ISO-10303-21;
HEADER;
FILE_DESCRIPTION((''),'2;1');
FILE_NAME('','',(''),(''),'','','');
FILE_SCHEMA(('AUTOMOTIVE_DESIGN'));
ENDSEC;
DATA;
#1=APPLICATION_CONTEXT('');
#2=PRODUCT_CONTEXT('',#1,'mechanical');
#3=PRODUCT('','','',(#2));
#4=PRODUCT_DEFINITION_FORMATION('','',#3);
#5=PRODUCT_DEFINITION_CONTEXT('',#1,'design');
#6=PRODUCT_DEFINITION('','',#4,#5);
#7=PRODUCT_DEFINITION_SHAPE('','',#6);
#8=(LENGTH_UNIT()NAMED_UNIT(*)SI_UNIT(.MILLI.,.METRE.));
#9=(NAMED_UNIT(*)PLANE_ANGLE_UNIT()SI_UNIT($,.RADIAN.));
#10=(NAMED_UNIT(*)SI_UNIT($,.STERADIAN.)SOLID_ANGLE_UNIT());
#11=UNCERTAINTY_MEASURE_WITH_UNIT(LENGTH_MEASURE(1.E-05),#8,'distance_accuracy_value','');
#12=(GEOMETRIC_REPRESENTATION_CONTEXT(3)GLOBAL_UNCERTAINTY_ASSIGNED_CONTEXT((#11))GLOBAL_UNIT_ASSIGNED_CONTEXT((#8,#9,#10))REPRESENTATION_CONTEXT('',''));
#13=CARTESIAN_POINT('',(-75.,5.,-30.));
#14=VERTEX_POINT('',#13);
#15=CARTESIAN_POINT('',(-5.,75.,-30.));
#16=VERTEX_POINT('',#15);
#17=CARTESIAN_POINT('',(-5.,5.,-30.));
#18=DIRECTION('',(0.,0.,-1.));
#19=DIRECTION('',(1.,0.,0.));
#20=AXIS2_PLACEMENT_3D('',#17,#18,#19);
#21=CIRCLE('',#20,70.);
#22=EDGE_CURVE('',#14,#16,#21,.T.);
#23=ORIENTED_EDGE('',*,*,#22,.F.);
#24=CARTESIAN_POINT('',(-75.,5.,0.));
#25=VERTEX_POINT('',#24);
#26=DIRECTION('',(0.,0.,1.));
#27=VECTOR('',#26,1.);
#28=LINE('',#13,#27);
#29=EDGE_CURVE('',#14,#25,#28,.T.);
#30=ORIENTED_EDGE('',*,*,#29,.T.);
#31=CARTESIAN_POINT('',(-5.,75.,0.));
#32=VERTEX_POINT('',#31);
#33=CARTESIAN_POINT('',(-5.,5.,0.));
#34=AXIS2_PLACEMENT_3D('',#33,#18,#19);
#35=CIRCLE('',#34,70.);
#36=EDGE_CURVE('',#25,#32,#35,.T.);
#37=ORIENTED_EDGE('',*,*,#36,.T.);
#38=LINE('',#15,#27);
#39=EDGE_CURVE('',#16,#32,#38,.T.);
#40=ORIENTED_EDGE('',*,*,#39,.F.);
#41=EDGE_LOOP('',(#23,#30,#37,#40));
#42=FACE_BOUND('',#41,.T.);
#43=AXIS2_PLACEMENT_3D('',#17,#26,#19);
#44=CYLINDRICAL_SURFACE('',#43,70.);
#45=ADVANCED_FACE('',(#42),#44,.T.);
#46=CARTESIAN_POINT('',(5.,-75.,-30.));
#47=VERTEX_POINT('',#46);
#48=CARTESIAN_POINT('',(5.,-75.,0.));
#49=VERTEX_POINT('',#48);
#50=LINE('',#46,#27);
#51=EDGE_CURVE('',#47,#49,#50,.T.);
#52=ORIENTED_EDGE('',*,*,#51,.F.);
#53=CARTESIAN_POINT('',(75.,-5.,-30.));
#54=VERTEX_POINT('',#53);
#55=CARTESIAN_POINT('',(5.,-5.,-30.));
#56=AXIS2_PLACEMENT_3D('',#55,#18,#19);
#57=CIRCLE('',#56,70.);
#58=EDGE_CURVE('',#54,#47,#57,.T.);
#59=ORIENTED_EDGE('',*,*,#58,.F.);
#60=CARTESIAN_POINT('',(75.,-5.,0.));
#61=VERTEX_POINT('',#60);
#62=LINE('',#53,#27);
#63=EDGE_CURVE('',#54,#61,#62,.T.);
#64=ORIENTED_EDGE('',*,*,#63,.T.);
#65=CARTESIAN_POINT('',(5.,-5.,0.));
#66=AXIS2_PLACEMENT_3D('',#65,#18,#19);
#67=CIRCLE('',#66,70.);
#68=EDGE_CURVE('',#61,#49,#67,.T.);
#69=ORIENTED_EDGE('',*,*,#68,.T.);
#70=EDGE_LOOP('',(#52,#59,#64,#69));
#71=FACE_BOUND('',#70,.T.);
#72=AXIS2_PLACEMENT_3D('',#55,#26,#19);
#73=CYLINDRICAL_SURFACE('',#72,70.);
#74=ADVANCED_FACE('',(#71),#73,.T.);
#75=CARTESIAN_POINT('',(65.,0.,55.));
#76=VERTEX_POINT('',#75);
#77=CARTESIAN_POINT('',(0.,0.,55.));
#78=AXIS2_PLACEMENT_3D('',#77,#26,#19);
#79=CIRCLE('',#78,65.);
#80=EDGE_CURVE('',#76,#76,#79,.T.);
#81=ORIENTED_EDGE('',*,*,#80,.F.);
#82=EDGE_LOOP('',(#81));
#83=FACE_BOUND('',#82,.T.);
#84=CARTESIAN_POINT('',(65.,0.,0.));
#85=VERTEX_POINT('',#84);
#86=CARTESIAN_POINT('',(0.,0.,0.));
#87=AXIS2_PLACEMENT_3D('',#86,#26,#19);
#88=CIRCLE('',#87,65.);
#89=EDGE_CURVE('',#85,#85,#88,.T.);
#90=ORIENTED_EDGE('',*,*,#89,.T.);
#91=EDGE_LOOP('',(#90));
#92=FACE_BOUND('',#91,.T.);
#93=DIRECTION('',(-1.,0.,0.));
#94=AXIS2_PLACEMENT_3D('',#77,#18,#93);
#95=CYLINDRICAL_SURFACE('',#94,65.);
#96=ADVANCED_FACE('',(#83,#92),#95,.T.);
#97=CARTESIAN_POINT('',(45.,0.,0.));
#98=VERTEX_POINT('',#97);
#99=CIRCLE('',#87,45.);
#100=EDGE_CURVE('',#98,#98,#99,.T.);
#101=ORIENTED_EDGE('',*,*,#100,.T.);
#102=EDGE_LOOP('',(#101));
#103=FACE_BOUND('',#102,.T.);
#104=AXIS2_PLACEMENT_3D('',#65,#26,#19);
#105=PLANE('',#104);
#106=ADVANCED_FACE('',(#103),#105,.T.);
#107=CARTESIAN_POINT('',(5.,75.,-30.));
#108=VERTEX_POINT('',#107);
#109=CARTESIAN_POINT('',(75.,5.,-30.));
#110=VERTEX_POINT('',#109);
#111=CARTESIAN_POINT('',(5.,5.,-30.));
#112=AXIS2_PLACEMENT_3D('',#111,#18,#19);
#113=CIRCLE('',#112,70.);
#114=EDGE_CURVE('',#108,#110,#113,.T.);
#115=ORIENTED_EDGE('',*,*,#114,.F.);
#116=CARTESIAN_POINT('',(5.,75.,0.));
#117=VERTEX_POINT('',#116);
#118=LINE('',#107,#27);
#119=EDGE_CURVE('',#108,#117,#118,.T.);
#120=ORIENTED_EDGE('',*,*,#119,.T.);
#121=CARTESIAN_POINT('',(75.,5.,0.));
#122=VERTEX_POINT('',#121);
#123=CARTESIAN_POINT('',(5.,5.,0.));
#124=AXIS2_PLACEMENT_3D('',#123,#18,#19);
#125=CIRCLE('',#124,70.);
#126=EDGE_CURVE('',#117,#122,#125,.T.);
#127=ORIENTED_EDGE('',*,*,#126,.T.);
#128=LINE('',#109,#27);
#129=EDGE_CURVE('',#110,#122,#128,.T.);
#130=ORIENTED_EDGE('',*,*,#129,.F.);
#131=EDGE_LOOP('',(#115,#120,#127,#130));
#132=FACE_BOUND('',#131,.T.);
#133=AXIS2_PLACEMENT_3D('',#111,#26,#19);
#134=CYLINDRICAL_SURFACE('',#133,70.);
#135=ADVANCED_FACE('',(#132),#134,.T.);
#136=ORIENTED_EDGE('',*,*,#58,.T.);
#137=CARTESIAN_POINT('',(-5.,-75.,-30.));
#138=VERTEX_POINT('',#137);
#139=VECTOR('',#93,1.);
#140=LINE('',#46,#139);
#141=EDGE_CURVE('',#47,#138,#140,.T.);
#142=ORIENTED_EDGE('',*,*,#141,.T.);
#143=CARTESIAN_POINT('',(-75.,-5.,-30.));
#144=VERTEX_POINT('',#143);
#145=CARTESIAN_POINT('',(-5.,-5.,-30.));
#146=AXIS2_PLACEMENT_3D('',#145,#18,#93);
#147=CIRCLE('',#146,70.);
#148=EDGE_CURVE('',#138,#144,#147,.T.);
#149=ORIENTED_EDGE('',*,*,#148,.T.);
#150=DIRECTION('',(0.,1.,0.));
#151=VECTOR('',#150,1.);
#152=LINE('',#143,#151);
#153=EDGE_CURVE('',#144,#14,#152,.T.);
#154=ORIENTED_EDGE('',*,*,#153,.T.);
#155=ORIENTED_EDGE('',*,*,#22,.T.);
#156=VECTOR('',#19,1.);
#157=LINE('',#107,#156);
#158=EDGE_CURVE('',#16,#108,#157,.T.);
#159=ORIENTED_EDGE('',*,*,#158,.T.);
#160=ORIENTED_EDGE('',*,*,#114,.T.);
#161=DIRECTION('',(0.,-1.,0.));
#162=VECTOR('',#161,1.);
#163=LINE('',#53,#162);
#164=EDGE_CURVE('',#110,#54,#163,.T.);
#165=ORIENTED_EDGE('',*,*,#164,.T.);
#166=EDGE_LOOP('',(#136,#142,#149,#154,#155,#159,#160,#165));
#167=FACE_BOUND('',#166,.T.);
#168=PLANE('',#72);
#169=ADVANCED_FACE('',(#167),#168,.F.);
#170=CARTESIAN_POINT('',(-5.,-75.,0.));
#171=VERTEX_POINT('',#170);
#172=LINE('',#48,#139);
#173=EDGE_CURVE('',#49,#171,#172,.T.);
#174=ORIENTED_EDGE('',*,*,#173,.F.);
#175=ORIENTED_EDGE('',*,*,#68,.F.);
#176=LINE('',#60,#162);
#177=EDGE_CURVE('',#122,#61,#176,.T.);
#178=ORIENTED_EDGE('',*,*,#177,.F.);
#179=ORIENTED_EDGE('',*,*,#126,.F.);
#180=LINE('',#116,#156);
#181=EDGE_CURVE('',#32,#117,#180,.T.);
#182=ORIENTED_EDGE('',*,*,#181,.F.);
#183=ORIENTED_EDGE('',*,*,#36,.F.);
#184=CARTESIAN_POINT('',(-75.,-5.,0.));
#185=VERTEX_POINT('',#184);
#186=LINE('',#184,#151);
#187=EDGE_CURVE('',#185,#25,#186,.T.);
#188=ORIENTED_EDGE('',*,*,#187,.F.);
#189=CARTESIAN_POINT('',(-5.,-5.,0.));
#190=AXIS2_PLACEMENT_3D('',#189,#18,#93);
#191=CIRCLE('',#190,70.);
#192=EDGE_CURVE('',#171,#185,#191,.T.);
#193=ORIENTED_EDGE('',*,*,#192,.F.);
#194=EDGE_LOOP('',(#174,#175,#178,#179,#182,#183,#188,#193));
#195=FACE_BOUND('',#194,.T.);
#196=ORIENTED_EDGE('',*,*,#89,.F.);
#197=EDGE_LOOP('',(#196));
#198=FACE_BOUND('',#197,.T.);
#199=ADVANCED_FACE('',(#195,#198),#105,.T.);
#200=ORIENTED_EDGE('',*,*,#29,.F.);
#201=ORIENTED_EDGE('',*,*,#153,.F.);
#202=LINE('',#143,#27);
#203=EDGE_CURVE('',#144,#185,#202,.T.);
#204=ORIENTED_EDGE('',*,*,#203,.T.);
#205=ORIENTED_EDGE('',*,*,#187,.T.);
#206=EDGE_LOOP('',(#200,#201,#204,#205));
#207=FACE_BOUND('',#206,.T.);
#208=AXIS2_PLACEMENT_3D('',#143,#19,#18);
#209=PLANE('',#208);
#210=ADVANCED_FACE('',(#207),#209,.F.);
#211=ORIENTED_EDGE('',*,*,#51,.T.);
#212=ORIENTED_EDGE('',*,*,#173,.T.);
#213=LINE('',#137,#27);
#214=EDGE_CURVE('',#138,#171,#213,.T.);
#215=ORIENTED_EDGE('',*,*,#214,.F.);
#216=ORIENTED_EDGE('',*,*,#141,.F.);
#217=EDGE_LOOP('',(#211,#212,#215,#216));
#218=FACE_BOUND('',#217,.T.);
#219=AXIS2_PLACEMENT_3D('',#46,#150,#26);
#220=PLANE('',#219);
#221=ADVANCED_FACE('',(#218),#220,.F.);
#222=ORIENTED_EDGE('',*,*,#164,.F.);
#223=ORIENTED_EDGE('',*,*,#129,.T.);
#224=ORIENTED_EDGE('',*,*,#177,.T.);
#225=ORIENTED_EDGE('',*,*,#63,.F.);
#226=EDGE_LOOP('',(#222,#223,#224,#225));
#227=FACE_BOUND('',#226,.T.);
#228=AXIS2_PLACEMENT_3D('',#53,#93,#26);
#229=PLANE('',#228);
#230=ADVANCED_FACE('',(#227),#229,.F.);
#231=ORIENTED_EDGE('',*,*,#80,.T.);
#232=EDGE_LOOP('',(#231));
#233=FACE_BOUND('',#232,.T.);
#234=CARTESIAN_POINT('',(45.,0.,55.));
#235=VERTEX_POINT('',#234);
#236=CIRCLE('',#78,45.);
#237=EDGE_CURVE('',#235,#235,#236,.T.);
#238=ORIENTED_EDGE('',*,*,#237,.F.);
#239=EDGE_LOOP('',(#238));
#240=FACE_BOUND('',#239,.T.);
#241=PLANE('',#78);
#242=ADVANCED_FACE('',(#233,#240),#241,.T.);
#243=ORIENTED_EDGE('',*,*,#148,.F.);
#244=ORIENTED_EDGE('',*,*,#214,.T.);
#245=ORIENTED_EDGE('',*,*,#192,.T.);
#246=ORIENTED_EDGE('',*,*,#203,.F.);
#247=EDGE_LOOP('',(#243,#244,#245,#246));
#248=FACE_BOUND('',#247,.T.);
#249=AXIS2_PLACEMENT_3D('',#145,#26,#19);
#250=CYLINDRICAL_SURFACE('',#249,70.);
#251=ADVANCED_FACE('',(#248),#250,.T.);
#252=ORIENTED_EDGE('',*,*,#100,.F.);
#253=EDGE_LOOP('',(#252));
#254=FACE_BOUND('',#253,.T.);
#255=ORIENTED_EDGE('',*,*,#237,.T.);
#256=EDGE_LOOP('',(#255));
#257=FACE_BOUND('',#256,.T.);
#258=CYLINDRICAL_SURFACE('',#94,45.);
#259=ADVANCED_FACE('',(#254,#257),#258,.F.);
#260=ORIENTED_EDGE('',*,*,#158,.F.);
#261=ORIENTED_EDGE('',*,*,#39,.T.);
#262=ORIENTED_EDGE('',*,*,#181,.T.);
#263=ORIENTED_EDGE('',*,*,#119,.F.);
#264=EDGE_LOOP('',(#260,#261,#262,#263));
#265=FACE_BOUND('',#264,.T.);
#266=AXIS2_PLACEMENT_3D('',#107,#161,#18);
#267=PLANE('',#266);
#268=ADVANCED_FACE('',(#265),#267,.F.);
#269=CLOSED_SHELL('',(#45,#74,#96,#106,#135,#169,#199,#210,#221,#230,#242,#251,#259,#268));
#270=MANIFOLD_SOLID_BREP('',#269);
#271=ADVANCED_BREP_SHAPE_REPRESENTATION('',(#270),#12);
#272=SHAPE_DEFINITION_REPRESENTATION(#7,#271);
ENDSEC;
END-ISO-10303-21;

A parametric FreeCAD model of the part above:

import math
import FreeCAD as App
import Part
import Sketcher

doc = App.newDocument("Part")
params = doc.addObject("Spreadsheet::Sheet", "Params")
for row, (alias, value) in enumerate([
    ("sketch1_diameter", "130 mm"),
    ("sketch1_diameter2", "90 mm"),
    ("pad1_length", "55 mm"),
    ("sketch2_radius", "70 mm"),
    ("sketch2_width", "10 mm"),
    ("pad2_length", "30 mm"),
], start=1):
    params.set(f"A{row}", alias)
    params.set(f"B{row}", "=" + value)
    params.setAlias(f"B{row}", alias)

body = doc.addObject("PartDesign::Body", "Body")

# Sketch on XY plane
sketch1 = body.newObject("Sketcher::SketchObject", "Sketch")
sketch1.AttachmentSupport = (doc.getObject("XY_Plane"), [""])
sketch1.MapMode = "FlatFace"
sketch1.addGeometry(Part.Circle(App.Vector(0, 0, 0), App.Vector(0, 0, 1), 65), False)
sketch1.addGeometry(Part.Circle(App.Vector(0, 0, 0), App.Vector(0, 0, 1), 45), False)
sketch1.addConstraint(Sketcher.Constraint("Coincident", 0, 3, -1, 1))
sketch1.addConstraint(Sketcher.Constraint("Coincident", 1, 3, -1, 1))
sketch1.addConstraint(Sketcher.Constraint("Diameter", 0, 130.0))
sketch1.addConstraint(Sketcher.Constraint("Diameter", 1, 90.0))
sketch1.setExpression("Constraints[2]", "Params.sketch1_diameter")
sketch1.setExpression("Constraints[3]", "Params.sketch1_diameter2")
pad1 = body.newObject("PartDesign::Pad", "Pad")
pad1.Profile = sketch1
pad1.setExpression("Length", "Params.pad1_length")

# Sketch on XY plane
sketch2 = body.newObject("Sketcher::SketchObject", "Sketch001")
sketch2.AttachmentSupport = (doc.getObject("XY_Plane"), [""])
sketch2.MapMode = "FlatFace"
sketch2.addGeometry(Part.LineSegment(App.Vector(5, -75, 0), App.Vector(-5, -75, 0)), False)
sketch2.addGeometry(Part.ArcOfCircle(Part.Circle(App.Vector(-5, -5, 0), App.Vector(0, 0, 1), 70), math.radians(180), math.radians(270)), False)
sketch2.addGeometry(Part.LineSegment(App.Vector(-75, -5, 0), App.Vector(-75, 5, 0)), False)
sketch2.addGeometry(Part.ArcOfCircle(Part.Circle(App.Vector(-5, 5, 0), App.Vector(0, 0, 1), 70), math.radians(90), math.radians(180)), False)
sketch2.addGeometry(Part.LineSegment(App.Vector(-5, 75, 0), App.Vector(5, 75, 0)), False)
sketch2.addGeometry(Part.ArcOfCircle(Part.Circle(App.Vector(5, 5, 0), App.Vector(0, 0, 1), 70), math.radians(0), math.radians(90)), False)
sketch2.addGeometry(Part.LineSegment(App.Vector(75, 5, 0), App.Vector(75, -5, 0)), False)
sketch2.addGeometry(Part.ArcOfCircle(Part.Circle(App.Vector(5, -5, 0), App.Vector(0, 0, 1), 70), math.radians(-90), math.radians(0)), False)
sketch2.addConstraint(Sketcher.Constraint("Tangent", 0, 2, 1, 2))
sketch2.addConstraint(Sketcher.Constraint("Tangent", 1, 1, 2, 1))
sketch2.addConstraint(Sketcher.Constraint("Tangent", 2, 2, 3, 2))
sketch2.addConstraint(Sketcher.Constraint("Tangent", 3, 1, 4, 1))
sketch2.addConstraint(Sketcher.Constraint("Tangent", 4, 2, 5, 2))
sketch2.addConstraint(Sketcher.Constraint("Tangent", 5, 1, 6, 1))
sketch2.addConstraint(Sketcher.Constraint("Tangent", 6, 2, 7, 2))
sketch2.addConstraint(Sketcher.Constraint("Tangent", 7, 1, 0, 1))
sketch2.addConstraint(Sketcher.Constraint("Horizontal", 0))
sketch2.addConstraint(Sketcher.Constraint("Vertical", 2))
sketch2.addConstraint(Sketcher.Constraint("Horizontal", 4))
sketch2.addConstraint(Sketcher.Constraint("Vertical", 6))
sketch2.addConstraint(Sketcher.Constraint("Equal", 1, 3))
sketch2.addConstraint(Sketcher.Constraint("Equal", 3, 5))
sketch2.addConstraint(Sketcher.Constraint("Equal", 5, 7))
sketch2.addConstraint(Sketcher.Constraint("Symmetric", 1, 3, 5, 3, -1, 1))
sketch2.addConstraint(Sketcher.Constraint("Equal", 4, 2))
sketch2.addConstraint(Sketcher.Constraint("Radius", 1, 70.0))
sketch2.addConstraint(Sketcher.Constraint("DistanceX", 0, 2, 0, 1, 10.0))
sketch2.setExpression("Constraints[17]", "Params.sketch2_radius")
sketch2.setExpression("Constraints[18]", "Params.sketch2_width")
pad2 = body.newObject("PartDesign::Pad", "Pad001")
pad2.Profile = sketch2
pad2.setExpression("Length", "Params.pad2_length")
pad2.Reversed = True

doc.recompute()
